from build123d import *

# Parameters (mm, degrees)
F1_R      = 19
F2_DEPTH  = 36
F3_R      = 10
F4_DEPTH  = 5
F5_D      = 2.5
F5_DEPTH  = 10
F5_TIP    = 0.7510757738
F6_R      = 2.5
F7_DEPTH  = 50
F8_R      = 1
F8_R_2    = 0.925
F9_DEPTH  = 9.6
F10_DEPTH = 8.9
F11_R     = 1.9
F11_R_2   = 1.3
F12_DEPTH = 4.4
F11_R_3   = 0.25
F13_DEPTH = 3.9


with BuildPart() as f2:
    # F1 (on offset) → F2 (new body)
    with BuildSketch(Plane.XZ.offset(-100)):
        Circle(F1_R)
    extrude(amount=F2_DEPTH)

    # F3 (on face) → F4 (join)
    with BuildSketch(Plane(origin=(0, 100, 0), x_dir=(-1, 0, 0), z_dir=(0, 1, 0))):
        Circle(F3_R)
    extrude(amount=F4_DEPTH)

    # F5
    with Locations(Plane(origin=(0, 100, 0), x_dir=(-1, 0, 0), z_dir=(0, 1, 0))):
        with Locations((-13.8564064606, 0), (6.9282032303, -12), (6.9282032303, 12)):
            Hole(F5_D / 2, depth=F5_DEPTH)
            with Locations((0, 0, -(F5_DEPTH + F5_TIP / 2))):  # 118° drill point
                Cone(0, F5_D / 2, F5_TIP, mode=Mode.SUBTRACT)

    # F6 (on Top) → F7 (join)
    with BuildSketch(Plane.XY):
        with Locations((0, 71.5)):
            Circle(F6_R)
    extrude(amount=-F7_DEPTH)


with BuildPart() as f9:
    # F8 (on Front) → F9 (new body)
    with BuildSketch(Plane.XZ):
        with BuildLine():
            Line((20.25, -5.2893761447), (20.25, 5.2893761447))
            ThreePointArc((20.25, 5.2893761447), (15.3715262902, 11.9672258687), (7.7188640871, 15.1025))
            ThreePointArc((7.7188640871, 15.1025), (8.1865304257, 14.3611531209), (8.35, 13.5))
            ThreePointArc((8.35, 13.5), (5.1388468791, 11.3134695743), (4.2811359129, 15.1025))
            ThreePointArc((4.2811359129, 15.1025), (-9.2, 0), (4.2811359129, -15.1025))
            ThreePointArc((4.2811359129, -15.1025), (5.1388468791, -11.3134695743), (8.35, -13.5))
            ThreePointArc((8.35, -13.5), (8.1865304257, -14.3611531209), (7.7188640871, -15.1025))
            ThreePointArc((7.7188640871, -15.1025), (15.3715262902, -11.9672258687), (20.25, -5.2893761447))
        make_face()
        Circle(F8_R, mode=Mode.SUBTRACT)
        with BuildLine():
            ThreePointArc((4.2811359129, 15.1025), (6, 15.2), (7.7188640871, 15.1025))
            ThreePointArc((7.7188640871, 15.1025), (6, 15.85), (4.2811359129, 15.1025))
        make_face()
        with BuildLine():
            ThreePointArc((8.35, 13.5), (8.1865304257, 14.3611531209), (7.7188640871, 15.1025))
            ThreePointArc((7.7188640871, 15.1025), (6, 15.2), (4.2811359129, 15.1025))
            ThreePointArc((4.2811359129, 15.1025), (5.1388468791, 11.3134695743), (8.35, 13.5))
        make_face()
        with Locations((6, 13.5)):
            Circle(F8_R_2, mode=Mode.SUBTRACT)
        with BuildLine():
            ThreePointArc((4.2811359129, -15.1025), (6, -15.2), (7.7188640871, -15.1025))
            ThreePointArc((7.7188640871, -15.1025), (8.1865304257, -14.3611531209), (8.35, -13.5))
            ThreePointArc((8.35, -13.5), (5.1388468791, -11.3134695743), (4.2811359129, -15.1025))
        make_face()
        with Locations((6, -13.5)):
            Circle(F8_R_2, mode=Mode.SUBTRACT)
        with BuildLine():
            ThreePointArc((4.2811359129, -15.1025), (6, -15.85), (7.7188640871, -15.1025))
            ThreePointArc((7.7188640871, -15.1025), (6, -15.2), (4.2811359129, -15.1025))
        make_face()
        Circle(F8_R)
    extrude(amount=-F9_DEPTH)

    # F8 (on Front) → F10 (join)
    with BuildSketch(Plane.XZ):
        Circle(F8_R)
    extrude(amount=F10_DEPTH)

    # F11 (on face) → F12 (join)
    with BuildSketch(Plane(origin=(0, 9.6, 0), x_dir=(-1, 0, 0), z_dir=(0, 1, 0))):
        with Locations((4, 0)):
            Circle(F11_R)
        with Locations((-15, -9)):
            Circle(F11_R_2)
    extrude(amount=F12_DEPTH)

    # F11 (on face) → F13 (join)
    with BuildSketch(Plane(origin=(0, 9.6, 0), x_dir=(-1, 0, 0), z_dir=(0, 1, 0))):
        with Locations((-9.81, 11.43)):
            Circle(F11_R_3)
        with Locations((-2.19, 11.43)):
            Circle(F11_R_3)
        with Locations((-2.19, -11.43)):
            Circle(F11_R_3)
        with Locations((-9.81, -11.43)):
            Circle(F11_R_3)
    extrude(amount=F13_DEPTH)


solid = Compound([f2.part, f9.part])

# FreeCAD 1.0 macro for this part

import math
import FreeCAD as App
import Part
import Sketcher

doc = App.newDocument("Part")
body = doc.addObject("PartDesign::Body", "Body")

# Sketch on XZ plane
sketch1 = body.newObject("Sketcher::SketchObject", "Sketch")
sketch1.AttachmentSupport = (doc.getObject("XZ_Plane"), [""])
sketch1.MapMode = "FlatFace"
sketch1.AttachmentOffset = App.Placement(App.Vector(0, 0, -100), App.Rotation())
sketch1.addGeometry(Part.Circle(App.Vector(0, 0, 0), App.Vector(0, 0, 1), 19), False)
sketch1.addConstraint([
    Sketcher.Constraint("Coincident", 0, 3, -1, 1),
    Sketcher.Constraint("Diameter", 0, 38.0),
])
pad1 = body.newObject("PartDesign::Pad", "Pad")
pad1.Profile = sketch1
pad1.Length = 36

# Sketch on XZ plane
sketch2 = body.newObject("Sketcher::SketchObject", "Sketch001")
sketch2.AttachmentSupport = (doc.getObject("XZ_Plane"), [""])
sketch2.MapMode = "FlatFace"
sketch2.AttachmentOffset = App.Placement(App.Vector(0, 0, -100), App.Rotation())
sketch2.addGeometry(Part.Circle(App.Vector(0, 0, 0), App.Vector(0, 0, 1), 10), False)
sketch2.addConstraint([
    Sketcher.Constraint("Coincident", 0, 3, -1, 1),
    Sketcher.Constraint("Diameter", 0, 20.0),
])
pad2 = body.newObject("PartDesign::Pad", "Pad001")
pad2.Profile = sketch2
pad2.Length = 5
pad2.Reversed = True

# Sketch on XZ plane
sketch3 = body.newObject("Sketcher::SketchObject", "Sketch002")
sketch3.AttachmentSupport = (doc.getObject("XZ_Plane"), [""])
sketch3.MapMode = "FlatFace"
sketch3.AttachmentOffset = App.Placement(App.Vector(0, 0, -100), App.Rotation())
sketch3.addGeometry([
    Part.Circle(App.Vector(13.856406, 0, 0), App.Vector(0, 0, 1), 1.25),
    Part.Circle(App.Vector(-6.928203, -12, 0), App.Vector(0, 0, 1), 1.25),
    Part.Circle(App.Vector(-6.928203, 12, 0), App.Vector(0, 0, 1), 1.25),
], False)
sketch3.addConstraint([
    Sketcher.Constraint("Equal", 0, 1),
    Sketcher.Constraint("Equal", 1, 2),
    Sketcher.Constraint("Symmetric", 1, 3, 2, 3, -1),
    Sketcher.Constraint("PointOnObject", 0, 3, -1),
    Sketcher.Constraint("Diameter", 0, 2.5),
    Sketcher.Constraint("DistanceY", 1, 3, -1, 1, 12.0),
    Sketcher.Constraint("DistanceX", 1, 3, 0, 3, 20.78461),
    Sketcher.Constraint("DistanceX", -1, 1, 0, 3, 13.856406),
])
doc.recompute()
hole = body.newObject("PartDesign::Hole", "Hole")
hole.Profile = sketch3
hole.ThreadType = "None"
hole.Diameter = 2.5
hole.DepthType = "Dimension"
hole.Depth = 10
hole.DrillPoint = "Angled"
hole.DrillPointAngle = 118
hole.Reversed = True

# Sketch on XY plane
sketch4 = body.newObject("Sketcher::SketchObject", "Sketch003")
sketch4.AttachmentSupport = (doc.getObject("XY_Plane"), [""])
sketch4.MapMode = "FlatFace"
sketch4.addGeometry(Part.Circle(App.Vector(0, 71.5, 0), App.Vector(0, 0, 1), 2.5), False)
sketch4.addConstraint([
    Sketcher.Constraint("PointOnObject", 0, 3, -2),
    Sketcher.Constraint("Diameter", 0, 5.0),
    Sketcher.Constraint("DistanceY", -1, 1, 0, 3, 71.5),
])
pad3 = body.newObject("PartDesign::Pad", "Pad002")
pad3.Profile = sketch4
pad3.Length = 50
pad3.Reversed = True
body2 = doc.addObject("PartDesign::Body", "Body001")

# Sketch on XZ plane
sketch5 = body2.newObject("Sketcher::SketchObject", "Sketch004")
sketch5.AttachmentSupport = (doc.getObject("XZ_Plane001"), [""])
sketch5.MapMode = "FlatFace"
sketch5.addGeometry([
    Part.LineSegment(App.Vector(20.25, -5.289376, 0), App.Vector(20.25, 5.289376, 0)),  # 0
    Part.ArcOfCircle(Part.Circle(App.Vector(6, 0, 0), App.Vector(0, 0, 1), 15.2), math.radians(20.364135), math.radians(83.506923)),  # 1
    Part.ArcOfCircle(Part.Circle(App.Vector(6, 13.5, 0), App.Vector(0, 0, 1), 2.35), math.radians(42.993461), math.radians(137.006539)),  # 2
    Part.ArcOfCircle(Part.Circle(App.Vector(6, 0, 0), App.Vector(0, 0, 1), 15.2), math.radians(96.493077), math.radians(263.506923)),  # 3
    Part.ArcOfCircle(Part.Circle(App.Vector(6, -13.5, 0), App.Vector(0, 0, 1), 2.35), math.radians(-137.006539), math.radians(-42.993461)),  # 4
    Part.ArcOfCircle(Part.Circle(App.Vector(6, 0, 0), App.Vector(0, 0, 1), 15.2), math.radians(-83.506923), math.radians(-20.364135)),  # 5
    Part.Circle(App.Vector(6, -13.5, 0), App.Vector(0, 0, 1), 0.925),  # 6
    Part.Circle(App.Vector(6, 13.5, 0), App.Vector(0, 0, 1), 0.925),  # 7
], False)
sketch5.addConstraint([
    Sketcher.Constraint("Coincident", 0, 2, 1, 1),
    Sketcher.Constraint("Coincident", 1, 2, 2, 1),
    Sketcher.Constraint("Coincident", 2, 2, 3, 1),
    Sketcher.Constraint("Coincident", 3, 2, 4, 1),
    Sketcher.Constraint("Coincident", 4, 2, 5, 1),
    Sketcher.Constraint("Coincident", 5, 2, 0, 1),
    Sketcher.Constraint("Vertical", 0),
    Sketcher.Constraint("Coincident", 3, 3, 1, 3),
    Sketcher.Constraint("Coincident", 5, 3, 1, 3),
    Sketcher.Constraint("Coincident", 6, 3, 4, 3),
    Sketcher.Constraint("Coincident", 7, 3, 2, 3),
    Sketcher.Constraint("Equal", 1, 3),
    Sketcher.Constraint("Equal", 2, 4),
    Sketcher.Constraint("Equal", 3, 5),
    Sketcher.Constraint("Equal", 6, 7),
    Sketcher.Constraint("Symmetric", 2, 3, 4, 3, -1),
    Sketcher.Constraint("PointOnObject", 1, 3, -1),
    Sketcher.Constraint("Horizontal", 1, 2, 2, 2),
    Sketcher.Constraint("Radius", 1, 15.2),
    Sketcher.Constraint("Diameter", 6, 1.85),
    Sketcher.Constraint("Radius", 2, 2.35),
    Sketcher.Constraint("DistanceX", -1, 1, 1, 3, 6.0),
    Sketcher.Constraint("DistanceY", 4, 3, 2, 3, 27.0),
    Sketcher.Constraint("DistanceX", -1, 1, 0, 2, 20.25),
])
pad4 = body2.newObject("PartDesign::Pad", "Pad003")
pad4.Profile = sketch5
pad4.Length = 9.6
pad4.Reversed = True

# Sketch on XZ plane
sketch6 = body2.newObject("Sketcher::SketchObject", "Sketch005")
sketch6.AttachmentSupport = (doc.getObject("XZ_Plane001"), [""])
sketch6.MapMode = "FlatFace"
sketch6.addGeometry(Part.Circle(App.Vector(0, 0, 0), App.Vector(0, 0, 1), 1), False)
sketch6.addConstraint([
    Sketcher.Constraint("Coincident", 0, 3, -1, 1),
    Sketcher.Constraint("Diameter", 0, 2.0),
])
pad5 = body2.newObject("PartDesign::Pad", "Pad004")
pad5.Profile = sketch6
pad5.Length = 8.9

# Sketch on XZ plane
sketch7 = body2.newObject("Sketcher::SketchObject", "Sketch006")
sketch7.AttachmentSupport = (doc.getObject("XZ_Plane001"), [""])
sketch7.MapMode = "FlatFace"
sketch7.AttachmentOffset = App.Placement(App.Vector(0, 0, -9.6), App.Rotation())
sketch7.addGeometry([
    Part.Circle(App.Vector(-4, 0, 0), App.Vector(0, 0, 1), 1.9),
    Part.Circle(App.Vector(15, -9, 0), App.Vector(0, 0, 1), 1.3),
], False)
sketch7.addConstraint([
    Sketcher.Constraint("PointOnObject", 0, 3, -1),
    Sketcher.Constraint("Diameter", 0, 3.8),
    Sketcher.Constraint("Diameter", 1, 2.6),
    Sketcher.Constraint("DistanceX", 0, 3, -1, 1, 4.0),
    Sketcher.Constraint("DistanceX", -1, 1, 1, 3, 15.0),
    Sketcher.Constraint("DistanceY", 1, 3, -1, 1, 9.0),
])
pad6 = body2.newObject("PartDesign::Pad", "Pad005")
pad6.Profile = sketch7
pad6.Length = 4.4
pad6.Reversed = True

# Sketch on XZ plane
sketch8 = body2.newObject("Sketcher::SketchObject", "Sketch007")
sketch8.AttachmentSupport = (doc.getObject("XZ_Plane001"), [""])
sketch8.MapMode = "FlatFace"
sketch8.AttachmentOffset = App.Placement(App.Vector(0, 0, -9.6), App.Rotation())
sketch8.addGeometry([
    Part.Circle(App.Vector(9.81, 11.43, 0), App.Vector(0, 0, 1), 0.25),
    Part.Circle(App.Vector(2.19, 11.43, 0), App.Vector(0, 0, 1), 0.25),
    Part.Circle(App.Vector(2.19, -11.43, 0), App.Vector(0, 0, 1), 0.25),
    Part.Circle(App.Vector(9.81, -11.43, 0), App.Vector(0, 0, 1), 0.25),
], False)
sketch8.addConstraint([
    Sketcher.Constraint("Equal", 0, 1),
    Sketcher.Constraint("Equal", 1, 2),
    Sketcher.Constraint("Equal", 2, 3),
    Sketcher.Constraint("Symmetric", 1, 3, 2, 3, -1),
    Sketcher.Constraint("Symmetric", 0, 3, 3, 3, -1),
    Sketcher.Constraint("Horizontal", 0, 3, 1, 3),
    Sketcher.Constraint("Diameter", 0, 0.5),
    Sketcher.Constraint("DistanceX", -1, 1, 0, 3, 9.81),
    Sketcher.Constraint("DistanceY", -1, 1, 0, 3, 11.43),
    Sketcher.Constraint("DistanceX", -1, 1, 1, 3, 2.19),
])
pad7 = body2.newObject("PartDesign::Pad", "Pad006")
pad7.Profile = sketch8
pad7.Length = 3.9
pad7.Reversed = True

doc.recompute()
